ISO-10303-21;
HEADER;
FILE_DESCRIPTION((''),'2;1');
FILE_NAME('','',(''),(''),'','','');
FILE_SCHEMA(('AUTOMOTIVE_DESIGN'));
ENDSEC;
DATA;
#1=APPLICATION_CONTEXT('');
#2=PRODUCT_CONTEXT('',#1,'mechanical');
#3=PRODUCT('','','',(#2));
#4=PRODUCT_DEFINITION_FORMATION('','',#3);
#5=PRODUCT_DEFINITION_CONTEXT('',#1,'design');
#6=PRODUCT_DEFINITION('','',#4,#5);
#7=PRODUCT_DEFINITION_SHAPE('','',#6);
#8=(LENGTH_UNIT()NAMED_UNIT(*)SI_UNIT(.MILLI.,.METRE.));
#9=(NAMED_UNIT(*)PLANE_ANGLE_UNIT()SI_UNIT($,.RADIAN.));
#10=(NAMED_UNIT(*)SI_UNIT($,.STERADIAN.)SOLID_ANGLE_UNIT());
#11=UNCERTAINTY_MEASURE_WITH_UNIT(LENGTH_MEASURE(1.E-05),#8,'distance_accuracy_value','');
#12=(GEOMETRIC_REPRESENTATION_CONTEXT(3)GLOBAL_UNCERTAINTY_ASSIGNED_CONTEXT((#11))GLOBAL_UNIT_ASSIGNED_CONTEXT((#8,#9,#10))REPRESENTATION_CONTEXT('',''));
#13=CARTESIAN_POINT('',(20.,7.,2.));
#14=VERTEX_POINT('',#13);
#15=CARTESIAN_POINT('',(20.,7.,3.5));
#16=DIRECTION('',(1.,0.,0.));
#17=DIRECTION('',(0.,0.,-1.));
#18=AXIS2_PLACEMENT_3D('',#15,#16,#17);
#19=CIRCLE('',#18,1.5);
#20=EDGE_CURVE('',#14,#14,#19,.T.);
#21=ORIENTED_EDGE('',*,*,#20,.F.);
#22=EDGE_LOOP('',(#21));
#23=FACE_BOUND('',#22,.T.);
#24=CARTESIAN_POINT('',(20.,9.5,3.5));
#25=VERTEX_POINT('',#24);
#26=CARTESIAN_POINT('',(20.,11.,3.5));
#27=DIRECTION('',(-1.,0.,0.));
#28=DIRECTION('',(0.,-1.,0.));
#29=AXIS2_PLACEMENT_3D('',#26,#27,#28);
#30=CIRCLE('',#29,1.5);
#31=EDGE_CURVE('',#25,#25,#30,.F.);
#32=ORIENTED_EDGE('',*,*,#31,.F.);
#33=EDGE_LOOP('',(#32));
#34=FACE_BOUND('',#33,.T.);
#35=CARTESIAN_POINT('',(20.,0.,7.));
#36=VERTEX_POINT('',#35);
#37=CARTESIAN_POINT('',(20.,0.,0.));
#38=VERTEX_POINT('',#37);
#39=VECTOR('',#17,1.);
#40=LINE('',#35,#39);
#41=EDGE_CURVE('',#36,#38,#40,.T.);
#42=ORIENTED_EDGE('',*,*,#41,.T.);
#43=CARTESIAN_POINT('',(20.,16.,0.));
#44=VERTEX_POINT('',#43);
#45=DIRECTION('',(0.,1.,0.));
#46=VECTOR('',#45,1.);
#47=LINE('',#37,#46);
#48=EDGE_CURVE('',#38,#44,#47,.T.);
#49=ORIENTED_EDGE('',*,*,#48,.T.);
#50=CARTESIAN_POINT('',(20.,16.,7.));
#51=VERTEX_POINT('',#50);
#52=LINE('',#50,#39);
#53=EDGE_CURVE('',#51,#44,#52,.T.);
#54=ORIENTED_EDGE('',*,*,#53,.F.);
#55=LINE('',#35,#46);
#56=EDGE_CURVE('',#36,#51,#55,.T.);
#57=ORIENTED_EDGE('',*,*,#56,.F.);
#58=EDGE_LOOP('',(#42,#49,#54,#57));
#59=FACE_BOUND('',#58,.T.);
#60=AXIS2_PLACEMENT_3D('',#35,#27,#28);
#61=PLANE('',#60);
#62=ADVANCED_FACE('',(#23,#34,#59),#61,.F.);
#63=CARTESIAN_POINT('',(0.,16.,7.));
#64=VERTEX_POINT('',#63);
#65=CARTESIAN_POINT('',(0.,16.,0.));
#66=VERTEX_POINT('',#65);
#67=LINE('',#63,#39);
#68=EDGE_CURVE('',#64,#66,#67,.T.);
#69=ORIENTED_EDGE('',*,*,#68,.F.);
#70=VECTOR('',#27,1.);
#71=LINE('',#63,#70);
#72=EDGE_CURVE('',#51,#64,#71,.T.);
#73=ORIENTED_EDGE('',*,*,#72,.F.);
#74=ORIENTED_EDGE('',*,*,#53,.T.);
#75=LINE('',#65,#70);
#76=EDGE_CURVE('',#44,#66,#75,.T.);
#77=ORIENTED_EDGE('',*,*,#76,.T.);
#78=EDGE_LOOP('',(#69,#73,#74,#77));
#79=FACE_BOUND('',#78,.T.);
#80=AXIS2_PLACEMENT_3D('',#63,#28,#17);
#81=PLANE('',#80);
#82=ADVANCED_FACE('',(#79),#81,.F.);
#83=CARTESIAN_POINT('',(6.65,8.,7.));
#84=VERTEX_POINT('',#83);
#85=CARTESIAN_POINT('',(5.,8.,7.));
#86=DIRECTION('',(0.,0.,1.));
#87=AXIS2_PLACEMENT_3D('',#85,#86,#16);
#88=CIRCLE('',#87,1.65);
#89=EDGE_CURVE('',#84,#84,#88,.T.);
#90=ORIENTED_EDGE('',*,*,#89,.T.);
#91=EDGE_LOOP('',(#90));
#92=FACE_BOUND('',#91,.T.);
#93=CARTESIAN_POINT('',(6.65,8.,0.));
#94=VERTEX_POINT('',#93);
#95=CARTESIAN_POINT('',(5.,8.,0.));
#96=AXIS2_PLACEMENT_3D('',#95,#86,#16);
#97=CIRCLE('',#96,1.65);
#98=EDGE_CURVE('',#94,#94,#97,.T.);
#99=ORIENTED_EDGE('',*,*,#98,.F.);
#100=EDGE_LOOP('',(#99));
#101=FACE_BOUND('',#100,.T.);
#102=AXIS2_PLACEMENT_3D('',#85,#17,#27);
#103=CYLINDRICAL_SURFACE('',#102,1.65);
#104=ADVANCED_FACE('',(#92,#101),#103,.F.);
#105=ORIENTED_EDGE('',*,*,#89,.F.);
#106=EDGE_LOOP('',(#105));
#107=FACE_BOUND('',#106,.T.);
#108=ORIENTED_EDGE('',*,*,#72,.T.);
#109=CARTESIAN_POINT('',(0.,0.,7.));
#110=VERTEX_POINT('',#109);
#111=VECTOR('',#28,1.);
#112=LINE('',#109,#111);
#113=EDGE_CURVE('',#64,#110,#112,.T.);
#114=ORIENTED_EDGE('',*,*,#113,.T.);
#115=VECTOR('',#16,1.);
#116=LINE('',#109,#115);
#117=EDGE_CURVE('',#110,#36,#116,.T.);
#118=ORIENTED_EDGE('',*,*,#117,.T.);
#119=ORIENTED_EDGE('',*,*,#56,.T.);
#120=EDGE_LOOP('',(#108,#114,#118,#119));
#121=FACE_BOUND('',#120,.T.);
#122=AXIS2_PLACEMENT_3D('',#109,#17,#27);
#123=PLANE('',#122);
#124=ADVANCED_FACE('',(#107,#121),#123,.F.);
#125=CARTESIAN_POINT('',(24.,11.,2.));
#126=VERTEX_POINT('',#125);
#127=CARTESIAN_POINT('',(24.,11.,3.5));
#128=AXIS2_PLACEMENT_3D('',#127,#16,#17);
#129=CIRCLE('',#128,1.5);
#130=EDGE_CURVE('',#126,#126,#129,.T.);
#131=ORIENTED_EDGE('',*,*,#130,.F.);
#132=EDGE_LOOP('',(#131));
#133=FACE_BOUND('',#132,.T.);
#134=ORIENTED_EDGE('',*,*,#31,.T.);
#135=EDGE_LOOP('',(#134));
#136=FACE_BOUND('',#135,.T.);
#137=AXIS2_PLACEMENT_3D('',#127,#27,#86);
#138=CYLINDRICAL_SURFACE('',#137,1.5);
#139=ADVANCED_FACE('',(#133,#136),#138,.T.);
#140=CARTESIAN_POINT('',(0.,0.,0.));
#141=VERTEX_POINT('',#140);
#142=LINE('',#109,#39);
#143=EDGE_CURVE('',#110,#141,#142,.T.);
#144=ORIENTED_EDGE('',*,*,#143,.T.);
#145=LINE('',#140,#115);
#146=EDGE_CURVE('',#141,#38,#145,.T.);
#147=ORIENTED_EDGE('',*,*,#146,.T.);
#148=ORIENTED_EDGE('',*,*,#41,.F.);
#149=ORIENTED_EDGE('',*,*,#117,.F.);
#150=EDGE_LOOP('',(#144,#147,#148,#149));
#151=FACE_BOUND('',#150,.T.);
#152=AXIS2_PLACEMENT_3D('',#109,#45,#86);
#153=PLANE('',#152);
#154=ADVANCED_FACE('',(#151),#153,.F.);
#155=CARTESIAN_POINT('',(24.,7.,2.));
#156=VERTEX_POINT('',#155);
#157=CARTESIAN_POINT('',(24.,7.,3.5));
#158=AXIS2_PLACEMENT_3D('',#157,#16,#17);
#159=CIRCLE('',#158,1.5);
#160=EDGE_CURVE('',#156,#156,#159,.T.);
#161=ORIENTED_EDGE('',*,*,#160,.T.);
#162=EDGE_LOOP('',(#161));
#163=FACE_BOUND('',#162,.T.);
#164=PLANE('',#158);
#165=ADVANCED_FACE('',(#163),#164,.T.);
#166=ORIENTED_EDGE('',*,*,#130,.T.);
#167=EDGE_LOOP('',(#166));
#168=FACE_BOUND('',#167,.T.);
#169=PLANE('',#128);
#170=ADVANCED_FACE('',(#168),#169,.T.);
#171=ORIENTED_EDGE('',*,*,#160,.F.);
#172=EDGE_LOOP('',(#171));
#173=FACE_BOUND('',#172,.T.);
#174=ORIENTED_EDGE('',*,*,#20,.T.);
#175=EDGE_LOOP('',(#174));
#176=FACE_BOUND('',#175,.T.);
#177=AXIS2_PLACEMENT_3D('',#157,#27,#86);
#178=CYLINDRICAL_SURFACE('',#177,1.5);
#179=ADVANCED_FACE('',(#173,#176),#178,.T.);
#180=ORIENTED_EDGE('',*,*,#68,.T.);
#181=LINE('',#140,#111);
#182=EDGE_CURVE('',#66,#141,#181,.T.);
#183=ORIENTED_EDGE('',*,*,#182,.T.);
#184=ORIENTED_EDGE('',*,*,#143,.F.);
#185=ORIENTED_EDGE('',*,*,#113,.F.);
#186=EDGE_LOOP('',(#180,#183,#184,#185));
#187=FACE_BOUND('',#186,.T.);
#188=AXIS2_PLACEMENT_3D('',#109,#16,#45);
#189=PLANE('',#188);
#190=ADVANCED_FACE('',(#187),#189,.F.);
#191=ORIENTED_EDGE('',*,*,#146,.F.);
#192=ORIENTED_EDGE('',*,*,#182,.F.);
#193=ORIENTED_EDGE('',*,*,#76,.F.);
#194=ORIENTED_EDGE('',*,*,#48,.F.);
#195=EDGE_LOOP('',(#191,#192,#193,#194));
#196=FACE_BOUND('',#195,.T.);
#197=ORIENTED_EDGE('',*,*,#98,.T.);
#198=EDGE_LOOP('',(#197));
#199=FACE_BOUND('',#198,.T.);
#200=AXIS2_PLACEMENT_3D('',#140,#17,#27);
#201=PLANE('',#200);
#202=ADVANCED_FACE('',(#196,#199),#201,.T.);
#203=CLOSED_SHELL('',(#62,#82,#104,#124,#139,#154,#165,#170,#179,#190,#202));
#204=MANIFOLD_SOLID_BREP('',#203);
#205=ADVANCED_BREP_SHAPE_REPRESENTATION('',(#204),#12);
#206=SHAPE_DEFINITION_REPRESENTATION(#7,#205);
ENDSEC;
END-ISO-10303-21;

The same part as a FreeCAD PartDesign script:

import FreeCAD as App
import Part
import Sketcher

V = App.Vector
Q = App.Units.Quantity


def add_polygon(sketch, points):
    """Adds a closed chain of lines whose ends are joined by coincident constraints."""
    first, n = sketch.GeometryCount, len(points)
    for a, b in zip(points, points[1:] + points[:1]):
        sketch.addGeometry(Part.LineSegment(App.Vector(*a, 0), App.Vector(*b, 0)), False)
    for i in range(n):
        sketch.addConstraint(Sketcher.Constraint("Coincident", first + i, 2, first + (i + 1) % n, 1))

doc = App.newDocument("Part")
body = doc.addObject("PartDesign::Body", "Body")

# Sketch on XY plane
sketch1 = doc.addObject("Sketcher::SketchObject", "Sketch")
body.addObject(sketch1)
sketch1.AttachmentSupport = (doc.XY_Plane, [""])
sketch1.MapMode = "FlatFace"
add_polygon(sketch1, [(0, 16), (0, 0), (20, 0), (20, 16)])  # lines 0-3
sketch1.addGeometry(Part.Circle(V(5, 8, 0), V(0, 0, 1), 1.6), False)  # 4
sketch1.addConstraint([
    Sketcher.Constraint("Vertical", 0),
    Sketcher.Constraint("Horizontal", 1),
    Sketcher.Constraint("Vertical", 2),
    Sketcher.Constraint("Horizontal", 3),
    Sketcher.Constraint("Coincident", 0, 2, -1, 1),
    Sketcher.Constraint("Diameter", 4, Q("3.3 mm")),
    Sketcher.Constraint("DistanceX", 1, 1, 1, 2, Q("20 mm")),
    Sketcher.Constraint("DistanceY", 0, 2, 0, 1, Q("16 mm")),
    Sketcher.Constraint("DistanceX", -1, 1, 4, 3, Q("5 mm")),
    Sketcher.Constraint("DistanceY", -1, 1, 4, 3, Q("8 mm")),
])
pad1 = doc.addObject("PartDesign::Pad", "Pad")
body.addObject(pad1)
pad1.Profile = sketch1
pad1.Length = 7

# Sketch on YZ plane
sketch2 = doc.addObject("Sketcher::SketchObject", "Sketch001")
body.addObject(sketch2)
sketch2.AttachmentSupport = (doc.YZ_Plane, [""])
sketch2.MapMode = "FlatFace"
sketch2.AttachmentOffset = App.Placement(V(0, 0, 20), App.Rotation())
sketch2.addGeometry([
    Part.Circle(V(7, 3.5, 0), V(0, 0, 1), 1.5),
    Part.Circle(V(11, 3.5, 0), V(0, 0, 1), 1.5),
], False)
sketch2.addConstraint([
    Sketcher.Constraint("Equal", 0, 1),
    Sketcher.Constraint("Horizontal", 0, 3, 1, 3),
    Sketcher.Constraint("Diameter", 0, Q("3 mm")),
    Sketcher.Constraint("DistanceX", -1, 1, 0, 3, Q("7 mm")),
    Sketcher.Constraint("DistanceX", -1, 1, 1, 3, Q("11 mm")),
    Sketcher.Constraint("DistanceY", -1, 1, 0, 3, Q("3.5 mm")),
])
pad2 = doc.addObject("PartDesign::Pad", "Pad001")
body.addObject(pad2)
pad2.Profile = sketch2
pad2.Length = 4

doc.recompute()
